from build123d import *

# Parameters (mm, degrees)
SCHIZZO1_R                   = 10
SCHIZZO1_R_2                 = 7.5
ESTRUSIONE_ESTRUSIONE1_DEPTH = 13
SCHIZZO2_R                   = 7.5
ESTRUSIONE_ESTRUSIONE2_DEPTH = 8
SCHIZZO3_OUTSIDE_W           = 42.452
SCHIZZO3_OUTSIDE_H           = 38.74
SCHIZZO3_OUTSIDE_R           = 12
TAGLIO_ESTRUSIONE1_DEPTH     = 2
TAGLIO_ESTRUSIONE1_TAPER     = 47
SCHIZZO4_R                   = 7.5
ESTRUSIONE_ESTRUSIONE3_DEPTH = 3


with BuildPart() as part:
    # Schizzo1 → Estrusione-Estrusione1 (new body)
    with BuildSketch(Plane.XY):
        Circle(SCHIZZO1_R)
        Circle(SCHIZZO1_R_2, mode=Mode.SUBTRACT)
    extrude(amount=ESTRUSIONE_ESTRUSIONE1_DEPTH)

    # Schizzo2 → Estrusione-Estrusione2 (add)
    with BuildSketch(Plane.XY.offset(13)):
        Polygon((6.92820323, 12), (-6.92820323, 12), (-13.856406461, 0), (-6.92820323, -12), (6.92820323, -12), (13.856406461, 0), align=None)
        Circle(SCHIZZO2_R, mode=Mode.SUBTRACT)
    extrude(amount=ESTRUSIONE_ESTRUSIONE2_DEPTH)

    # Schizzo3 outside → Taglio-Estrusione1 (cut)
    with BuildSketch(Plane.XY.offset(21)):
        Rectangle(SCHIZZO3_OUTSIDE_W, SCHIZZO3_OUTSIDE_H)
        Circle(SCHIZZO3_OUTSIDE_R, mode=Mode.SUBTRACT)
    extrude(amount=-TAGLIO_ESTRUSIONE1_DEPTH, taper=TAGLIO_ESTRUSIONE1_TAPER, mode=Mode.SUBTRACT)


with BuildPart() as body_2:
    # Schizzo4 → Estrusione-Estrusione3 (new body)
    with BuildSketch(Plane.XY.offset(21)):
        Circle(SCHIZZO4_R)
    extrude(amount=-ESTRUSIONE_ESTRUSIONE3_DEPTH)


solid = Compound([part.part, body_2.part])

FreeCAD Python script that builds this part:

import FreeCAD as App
import Part
import Sketcher

V = App.Vector
Q = App.Units.Quantity

doc = App.newDocument("Part")
params = doc.addObject("Spreadsheet::Sheet", "Params")
for row, (alias, value) in enumerate([
    ("sketch1_diameter", "20 mm"),
    ("sketch1_diameter2", "15 mm"),
    ("pad1_length", "13 mm"),
    ("sketch2_diameter", "15 mm"),
    ("pad2_length", "8 mm"),
    ("sketch3_diameter", "24 mm"),
    ("sketch3_height", "38.74 mm"),
    ("pocket1_length", "2 mm"),
    ("pocket1_taper", "47 deg"),
    ("sketch4_diameter", "15 mm"),
    ("pad3_length", "3 mm"),
], start=1):
    params.set(f"A{row}", alias)
    params.set(f"B{row}", "=" + value)
    params.setAlias(f"B{row}", alias)

body = doc.addObject("PartDesign::Body", "Body")

sketch1 = doc.addObject("Sketcher::SketchObject", "Sketch")
body.addObject(sketch1)
sketch1.AttachmentSupport = (doc.XY_Plane, [""])
sketch1.MapMode = "FlatFace"
sketch1.addGeometry([
    Part.Circle(V(0, 0, 0), V(0, 0, 1), 10),
    Part.Circle(V(0, 0, 0), V(0, 0, 1), 8),
], False)
sketch1.addConstraint([
    Sketcher.Constraint("Coincident", 0, 3, -1, 1),
    Sketcher.Constraint("Coincident", 1, 3, -1, 1),
    Sketcher.Constraint("Diameter", 0, 20.0),
    Sketcher.Constraint("Diameter", 1, 15.0),
])
sketch1.setExpression("Constraints[2]", "Params.sketch1_diameter")
sketch1.setExpression("Constraints[3]", "Params.sketch1_diameter2")
pad1 = doc.addObject("PartDesign::Pad", "Pad")
body.addObject(pad1)
pad1.Profile = sketch1
pad1.setExpression("Length", "Params.pad1_length")

sketch2 = doc.addObject("Sketcher::SketchObject", "Sketch001")
body.addObject(sketch2)
sketch2.AttachmentSupport = (doc.XY_Plane, [""])
sketch2.MapMode = "FlatFace"
sketch2.AttachmentOffset = App.Placement(V(0, 0, 13), App.Rotation())
sketch2.addGeometry([
    Part.LineSegment(V(7, 12, 0), V(-7, 12, 0)),
    Part.LineSegment(V(-7, 12, 0), V(-14, 0, 0)),
    Part.LineSegment(V(-14, 0, 0), V(-7, -12, 0)),
    Part.LineSegment(V(-7, -12, 0), V(7, -12, 0)),
    Part.LineSegment(V(7, -12, 0), V(14, 0, 0)),
    Part.LineSegment(V(14, 0, 0), V(7, 12, 0)),
    Part.Circle(V(0, 0, 0), V(0, 0, 1), 8),
], False)
sketch2.addConstraint([
    Sketcher.Constraint("Coincident", 0, 2, 1, 1),
    Sketcher.Constraint("Coincident", 1, 2, 2, 1),
    Sketcher.Constraint("Coincident", 2, 2, 3, 1),
    Sketcher.Constraint("Coincident", 3, 2, 4, 1),
    Sketcher.Constraint("Coincident", 4, 2, 5, 1),
    Sketcher.Constraint("Coincident", 5, 2, 0, 1),
    Sketcher.Constraint("Horizontal", 0),
    Sketcher.Constraint("Horizontal", 3),
    Sketcher.Constraint("Coincident", 6, 3, -1, 1),
    Sketcher.Constraint("Symmetric", 0, 2, 3, 2, -1, 1),
    Sketcher.Constraint("Symmetric", 1, 2, 4, 2, -1, 1),
    Sketcher.Constraint("PointOnObject", 1, 2, -1),
    Sketcher.Constraint("Parallel", 2, 5),
    Sketcher.Constraint("Vertical", 0, 2, 2, 2),
    Sketcher.Constraint("Diameter", 6, 15.0),
    Sketcher.Constraint("Angle", 1, Q("-120 deg")),
    Sketcher.Constraint("DistanceY", -1, 1, 0, 2, 12.0),
    Sketcher.Constraint("DistanceX", 0, 2, 0, 1, 13.856406),
])
sketch2.setExpression("Constraints[14]", "Params.sketch2_diameter")
pad2 = doc.addObject("PartDesign::Pad", "Pad001")
body.addObject(pad2)
pad2.Profile = sketch2
pad2.setExpression("Length", "Params.pad2_length")

sketch3 = doc.addObject("Sketcher::SketchObject", "Sketch002")
body.addObject(sketch3)
sketch3.AttachmentSupport = (doc.XY_Plane, [""])
sketch3.MapMode = "FlatFace"
sketch3.AttachmentOffset = App.Placement(V(0, 0, 21), App.Rotation())
sketch3.addGeometry([
    Part.LineSegment(V(-21, 19, 0), V(-21, -19, 0)),
    Part.LineSegment(V(-21, -19, 0), V(21, -19, 0)),
    Part.LineSegment(V(21, -19, 0), V(21, 19, 0)),
    Part.LineSegment(V(21, 19, 0), V(-21, 19, 0)),
    Part.Circle(V(0, 0, 0), V(0, 0, 1), 12),
], False)
sketch3.addConstraint([
    Sketcher.Constraint("Coincident", 0, 2, 1, 1),
    Sketcher.Constraint("Coincident", 1, 2, 2, 1),
    Sketcher.Constraint("Coincident", 2, 2, 3, 1),
    Sketcher.Constraint("Coincident", 3, 2, 0, 1),
    Sketcher.Constraint("Vertical", 0),
    Sketcher.Constraint("Horizontal", 1),
    Sketcher.Constraint("Vertical", 2),
    Sketcher.Constraint("Horizontal", 3),
    Sketcher.Constraint("Coincident", 4, 3, -1, 1),
    Sketcher.Constraint("Symmetric", 0, 2, 2, 2, -1, 1),
    Sketcher.Constraint("Diameter", 4, 24.0),
    Sketcher.Constraint("DistanceY", 0, 2, 0, 1, 38.74),
    Sketcher.Constraint("DistanceX", 1, 1, 1, 2, 42.452),
])
sketch3.setExpression("Constraints[10]", "Params.sketch3_diameter")
sketch3.setExpression("Constraints[11]", "Params.sketch3_height")
pocket1 = doc.addObject("PartDesign::Pocket", "Pocket")
body.addObject(pocket1)
pocket1.Profile = sketch3
pocket1.setExpression("Length", "Params.pocket1_length")
pocket1.setExpression("TaperAngle", "Params.pocket1_taper")
body2 = doc.addObject("PartDesign::Body", "Body001")

sketch4 = doc.addObject("Sketcher::SketchObject", "Sketch003")
body2.addObject(sketch4)
sketch4.AttachmentSupport = (doc.getObject("XY_Plane001"), [""])
sketch4.MapMode = "FlatFace"
sketch4.AttachmentOffset = App.Placement(V(0, 0, 21), App.Rotation())
sketch4.addGeometry(Part.Circle(V(0, 0, 0), V(0, 0, 1), 8), False)
sketch4.addConstraint([
    Sketcher.Constraint("Coincident", 0, 3, -1, 1),
    Sketcher.Constraint("Diameter", 0, 15.0),
])
sketch4.setExpression("Constraints[1]", "Params.sketch4_diameter")
pad3 = doc.addObject("PartDesign::Pad", "Pad002")
body2.addObject(pad3)
pad3.Profile = sketch4
pad3.setExpression("Length", "Params.pad3_length")
pad3.Reversed = True

doc.recompute()
